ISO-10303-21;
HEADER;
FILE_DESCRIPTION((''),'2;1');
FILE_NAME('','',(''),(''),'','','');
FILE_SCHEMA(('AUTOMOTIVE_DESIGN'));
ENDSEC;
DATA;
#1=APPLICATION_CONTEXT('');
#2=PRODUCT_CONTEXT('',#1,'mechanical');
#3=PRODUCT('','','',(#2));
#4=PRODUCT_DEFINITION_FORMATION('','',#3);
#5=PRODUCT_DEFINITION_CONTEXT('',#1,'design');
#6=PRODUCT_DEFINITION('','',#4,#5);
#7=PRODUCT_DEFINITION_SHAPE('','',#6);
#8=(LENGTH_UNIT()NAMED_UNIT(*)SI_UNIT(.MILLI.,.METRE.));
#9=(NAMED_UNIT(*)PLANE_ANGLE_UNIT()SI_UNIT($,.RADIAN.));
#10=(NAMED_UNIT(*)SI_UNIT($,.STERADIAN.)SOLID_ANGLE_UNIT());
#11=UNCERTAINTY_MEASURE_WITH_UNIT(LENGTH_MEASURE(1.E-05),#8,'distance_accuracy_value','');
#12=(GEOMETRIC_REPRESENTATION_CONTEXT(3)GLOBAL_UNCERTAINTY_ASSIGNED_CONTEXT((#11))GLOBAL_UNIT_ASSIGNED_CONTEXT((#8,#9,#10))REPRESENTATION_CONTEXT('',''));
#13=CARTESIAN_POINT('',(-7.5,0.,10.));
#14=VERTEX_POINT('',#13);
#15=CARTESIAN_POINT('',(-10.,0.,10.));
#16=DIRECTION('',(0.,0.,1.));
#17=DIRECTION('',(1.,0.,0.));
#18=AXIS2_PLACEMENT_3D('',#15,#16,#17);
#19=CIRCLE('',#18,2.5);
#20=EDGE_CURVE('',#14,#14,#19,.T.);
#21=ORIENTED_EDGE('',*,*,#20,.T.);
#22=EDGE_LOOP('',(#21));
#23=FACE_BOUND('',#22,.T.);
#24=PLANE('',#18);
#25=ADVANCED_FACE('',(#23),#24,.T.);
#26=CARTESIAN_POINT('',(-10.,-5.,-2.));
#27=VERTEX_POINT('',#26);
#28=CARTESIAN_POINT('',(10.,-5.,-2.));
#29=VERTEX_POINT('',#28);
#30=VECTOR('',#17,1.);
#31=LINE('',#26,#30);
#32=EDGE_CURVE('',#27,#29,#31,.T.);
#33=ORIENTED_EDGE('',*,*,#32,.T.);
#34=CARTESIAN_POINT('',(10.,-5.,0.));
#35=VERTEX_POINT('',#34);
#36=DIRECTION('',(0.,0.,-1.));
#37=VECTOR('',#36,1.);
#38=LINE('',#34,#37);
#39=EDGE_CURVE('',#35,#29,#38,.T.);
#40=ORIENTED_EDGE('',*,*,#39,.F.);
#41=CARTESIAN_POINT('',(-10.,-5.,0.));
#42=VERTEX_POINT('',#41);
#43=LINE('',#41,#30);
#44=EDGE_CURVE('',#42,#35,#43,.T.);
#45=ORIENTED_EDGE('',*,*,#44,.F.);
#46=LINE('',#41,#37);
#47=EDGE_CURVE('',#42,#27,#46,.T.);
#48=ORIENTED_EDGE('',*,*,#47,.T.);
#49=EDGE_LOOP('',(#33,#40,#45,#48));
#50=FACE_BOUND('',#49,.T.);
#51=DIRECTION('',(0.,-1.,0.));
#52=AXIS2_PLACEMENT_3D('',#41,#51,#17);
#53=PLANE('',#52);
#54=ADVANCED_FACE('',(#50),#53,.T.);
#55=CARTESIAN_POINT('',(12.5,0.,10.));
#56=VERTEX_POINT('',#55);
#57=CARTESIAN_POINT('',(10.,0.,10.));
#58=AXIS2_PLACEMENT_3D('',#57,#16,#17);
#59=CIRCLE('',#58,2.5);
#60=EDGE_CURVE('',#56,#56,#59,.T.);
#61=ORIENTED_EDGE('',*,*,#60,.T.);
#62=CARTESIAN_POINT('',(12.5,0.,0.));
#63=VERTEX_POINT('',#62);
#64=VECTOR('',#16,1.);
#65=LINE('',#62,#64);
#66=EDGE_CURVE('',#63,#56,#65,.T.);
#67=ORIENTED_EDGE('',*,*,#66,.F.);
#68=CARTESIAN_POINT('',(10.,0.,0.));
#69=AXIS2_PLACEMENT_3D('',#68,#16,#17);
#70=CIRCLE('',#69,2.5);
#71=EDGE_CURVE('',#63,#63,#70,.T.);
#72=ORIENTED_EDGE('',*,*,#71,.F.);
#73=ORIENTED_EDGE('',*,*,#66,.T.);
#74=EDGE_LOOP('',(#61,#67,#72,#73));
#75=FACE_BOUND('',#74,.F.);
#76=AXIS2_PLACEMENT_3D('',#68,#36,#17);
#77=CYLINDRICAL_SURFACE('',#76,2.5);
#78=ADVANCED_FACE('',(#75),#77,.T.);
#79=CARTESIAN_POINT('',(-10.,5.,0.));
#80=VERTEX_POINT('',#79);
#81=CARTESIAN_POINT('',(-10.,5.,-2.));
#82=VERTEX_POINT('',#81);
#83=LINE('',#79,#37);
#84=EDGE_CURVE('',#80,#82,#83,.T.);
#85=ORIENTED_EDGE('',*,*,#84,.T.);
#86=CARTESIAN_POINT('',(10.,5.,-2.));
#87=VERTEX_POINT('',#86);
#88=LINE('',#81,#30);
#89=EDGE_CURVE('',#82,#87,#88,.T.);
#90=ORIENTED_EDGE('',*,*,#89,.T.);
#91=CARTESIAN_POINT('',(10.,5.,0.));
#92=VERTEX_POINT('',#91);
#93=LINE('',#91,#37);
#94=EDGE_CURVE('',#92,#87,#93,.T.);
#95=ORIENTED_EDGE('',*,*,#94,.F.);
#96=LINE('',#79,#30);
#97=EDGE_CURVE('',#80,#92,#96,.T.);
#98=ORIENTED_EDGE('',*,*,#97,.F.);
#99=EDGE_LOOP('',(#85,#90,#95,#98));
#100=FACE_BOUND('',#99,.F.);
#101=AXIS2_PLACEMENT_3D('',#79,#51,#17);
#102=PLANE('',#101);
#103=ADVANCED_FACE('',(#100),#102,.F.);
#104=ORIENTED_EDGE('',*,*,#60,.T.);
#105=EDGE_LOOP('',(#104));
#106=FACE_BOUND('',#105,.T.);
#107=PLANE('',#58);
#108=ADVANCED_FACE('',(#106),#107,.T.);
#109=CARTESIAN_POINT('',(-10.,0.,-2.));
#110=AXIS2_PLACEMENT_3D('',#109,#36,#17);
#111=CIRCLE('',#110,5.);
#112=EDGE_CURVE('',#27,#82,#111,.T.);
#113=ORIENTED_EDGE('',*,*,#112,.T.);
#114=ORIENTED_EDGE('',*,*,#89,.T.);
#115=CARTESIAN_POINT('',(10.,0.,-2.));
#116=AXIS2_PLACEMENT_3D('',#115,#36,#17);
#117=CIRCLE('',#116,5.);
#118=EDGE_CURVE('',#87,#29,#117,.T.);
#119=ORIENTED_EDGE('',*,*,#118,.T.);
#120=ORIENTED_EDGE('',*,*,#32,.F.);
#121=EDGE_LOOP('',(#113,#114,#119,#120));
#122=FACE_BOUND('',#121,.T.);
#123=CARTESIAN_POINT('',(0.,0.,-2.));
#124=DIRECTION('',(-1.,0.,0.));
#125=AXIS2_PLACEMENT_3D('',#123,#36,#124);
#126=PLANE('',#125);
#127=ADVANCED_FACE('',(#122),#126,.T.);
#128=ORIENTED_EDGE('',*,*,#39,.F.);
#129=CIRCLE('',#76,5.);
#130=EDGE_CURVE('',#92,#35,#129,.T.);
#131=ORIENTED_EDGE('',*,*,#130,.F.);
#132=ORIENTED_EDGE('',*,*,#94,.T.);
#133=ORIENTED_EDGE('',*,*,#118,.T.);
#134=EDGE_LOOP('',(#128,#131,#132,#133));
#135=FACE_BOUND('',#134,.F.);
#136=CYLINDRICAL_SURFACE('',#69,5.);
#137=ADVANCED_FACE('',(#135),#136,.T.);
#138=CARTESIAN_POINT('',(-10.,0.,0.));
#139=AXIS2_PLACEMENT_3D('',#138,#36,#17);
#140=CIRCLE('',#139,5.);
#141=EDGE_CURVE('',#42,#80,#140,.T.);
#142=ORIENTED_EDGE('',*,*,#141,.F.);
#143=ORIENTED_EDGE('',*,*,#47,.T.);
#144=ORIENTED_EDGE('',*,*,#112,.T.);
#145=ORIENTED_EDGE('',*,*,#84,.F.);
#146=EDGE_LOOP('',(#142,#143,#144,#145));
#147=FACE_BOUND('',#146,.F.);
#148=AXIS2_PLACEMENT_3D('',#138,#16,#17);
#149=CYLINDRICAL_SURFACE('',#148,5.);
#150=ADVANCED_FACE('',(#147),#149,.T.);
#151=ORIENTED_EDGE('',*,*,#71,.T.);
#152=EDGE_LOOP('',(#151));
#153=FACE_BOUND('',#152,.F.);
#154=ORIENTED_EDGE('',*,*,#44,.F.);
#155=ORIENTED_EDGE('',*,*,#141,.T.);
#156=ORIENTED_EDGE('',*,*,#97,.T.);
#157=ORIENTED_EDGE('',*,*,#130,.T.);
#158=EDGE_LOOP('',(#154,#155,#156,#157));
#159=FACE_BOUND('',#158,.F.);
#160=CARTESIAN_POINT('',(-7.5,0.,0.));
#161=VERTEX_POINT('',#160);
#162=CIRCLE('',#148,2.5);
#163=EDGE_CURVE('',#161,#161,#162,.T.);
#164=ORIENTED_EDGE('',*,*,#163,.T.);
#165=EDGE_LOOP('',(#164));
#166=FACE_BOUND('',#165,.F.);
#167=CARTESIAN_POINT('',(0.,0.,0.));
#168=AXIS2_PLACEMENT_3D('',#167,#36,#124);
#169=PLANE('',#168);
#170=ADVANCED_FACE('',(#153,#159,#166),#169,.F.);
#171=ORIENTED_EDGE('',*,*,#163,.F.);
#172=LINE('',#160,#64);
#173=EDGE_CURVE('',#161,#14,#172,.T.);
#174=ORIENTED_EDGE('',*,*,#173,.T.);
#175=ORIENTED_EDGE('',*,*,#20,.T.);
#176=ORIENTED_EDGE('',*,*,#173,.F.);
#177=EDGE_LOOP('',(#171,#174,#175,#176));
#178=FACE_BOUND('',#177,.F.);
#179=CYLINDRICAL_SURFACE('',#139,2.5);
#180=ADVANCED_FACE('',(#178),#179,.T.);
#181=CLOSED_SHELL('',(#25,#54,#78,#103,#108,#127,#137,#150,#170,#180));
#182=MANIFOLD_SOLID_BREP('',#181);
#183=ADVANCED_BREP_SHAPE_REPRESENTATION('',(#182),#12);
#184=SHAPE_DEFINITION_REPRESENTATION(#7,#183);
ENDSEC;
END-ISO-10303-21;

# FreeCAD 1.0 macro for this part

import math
import FreeCAD as App
import Part
import Sketcher
Q = App.Units.Quantity

doc = App.newDocument("Part")
body = doc.addObject("PartDesign::Body", "Body")

# Sketch on XY plane
sketch1 = body.newObject("Sketcher::SketchObject", "Sketch")
sketch1.AttachmentSupport = (doc.getObject("XY_Plane"), [""])
sketch1.MapMode = "FlatFace"
sketch1.addGeometry(Part.LineSegment(App.Vector(10, 5, 0), App.Vector(-10, 5, 0)), False)
sketch1.addGeometry(Part.ArcOfCircle(Part.Circle(App.Vector(-10, 0, 0), App.Vector(0, 0, 1), 5), math.radians(90), math.radians(270)), False)
sketch1.addGeometry(Part.LineSegment(App.Vector(-10, -5, 0), App.Vector(10, -5, 0)), False)
sketch1.addGeometry(Part.ArcOfCircle(Part.Circle(App.Vector(10, 0, 0), App.Vector(0, 0, 1), 5), math.radians(-90), math.radians(90)), False)
sketch1.addConstraint(Sketcher.Constraint("Tangent", 0, 2, 1, 1))
sketch1.addConstraint(Sketcher.Constraint("Tangent", 1, 2, 2, 1))
sketch1.addConstraint(Sketcher.Constraint("Tangent", 2, 2, 3, 1))
sketch1.addConstraint(Sketcher.Constraint("Tangent", 3, 2, 0, 1))
sketch1.addConstraint(Sketcher.Constraint("Horizontal", 0))
sketch1.addConstraint(Sketcher.Constraint("Horizontal", 2))
sketch1.addConstraint(Sketcher.Constraint("Symmetric", 1, 3, 3, 3, -1, 1))
sketch1.addConstraint(Sketcher.Constraint("Radius", 1, Q("5 mm")))
sketch1.addConstraint(Sketcher.Constraint("DistanceX", 0, 2, 0, 1, Q("20 mm")))
pad1 = body.newObject("PartDesign::Pad", "Pad")
pad1.Profile = sketch1
pad1.Length = 2
pad1.Reversed = True

# Sketch on XY plane
sketch2 = body.newObject("Sketcher::SketchObject", "Sketch001")
sketch2.AttachmentSupport = (doc.getObject("XY_Plane"), [""])
sketch2.MapMode = "FlatFace"
sketch2.addGeometry(Part.Circle(App.Vector(-10, 0, 0), App.Vector(0, 0, 1), 2.5), False)
sketch2.addGeometry(Part.Circle(App.Vector(10, 0, 0), App.Vector(0, 0, 1), 2.5), False)
sketch2.addConstraint(Sketcher.Constraint("Equal", 0, 1))
sketch2.addConstraint(Sketcher.Constraint("Symmetric", 0, 3, 1, 3, -1, 1))
sketch2.addConstraint(Sketcher.Constraint("PointOnObject", 0, 3, -1))
sketch2.addConstraint(Sketcher.Constraint("Diameter", 0, Q("5 mm")))
sketch2.addConstraint(Sketcher.Constraint("DistanceX", 0, 3, -1, 1, Q("10 mm")))
pad2 = body.newObject("PartDesign::Pad", "Pad001")
pad2.Profile = sketch2
pad2.Length = 10

doc.recompute()
